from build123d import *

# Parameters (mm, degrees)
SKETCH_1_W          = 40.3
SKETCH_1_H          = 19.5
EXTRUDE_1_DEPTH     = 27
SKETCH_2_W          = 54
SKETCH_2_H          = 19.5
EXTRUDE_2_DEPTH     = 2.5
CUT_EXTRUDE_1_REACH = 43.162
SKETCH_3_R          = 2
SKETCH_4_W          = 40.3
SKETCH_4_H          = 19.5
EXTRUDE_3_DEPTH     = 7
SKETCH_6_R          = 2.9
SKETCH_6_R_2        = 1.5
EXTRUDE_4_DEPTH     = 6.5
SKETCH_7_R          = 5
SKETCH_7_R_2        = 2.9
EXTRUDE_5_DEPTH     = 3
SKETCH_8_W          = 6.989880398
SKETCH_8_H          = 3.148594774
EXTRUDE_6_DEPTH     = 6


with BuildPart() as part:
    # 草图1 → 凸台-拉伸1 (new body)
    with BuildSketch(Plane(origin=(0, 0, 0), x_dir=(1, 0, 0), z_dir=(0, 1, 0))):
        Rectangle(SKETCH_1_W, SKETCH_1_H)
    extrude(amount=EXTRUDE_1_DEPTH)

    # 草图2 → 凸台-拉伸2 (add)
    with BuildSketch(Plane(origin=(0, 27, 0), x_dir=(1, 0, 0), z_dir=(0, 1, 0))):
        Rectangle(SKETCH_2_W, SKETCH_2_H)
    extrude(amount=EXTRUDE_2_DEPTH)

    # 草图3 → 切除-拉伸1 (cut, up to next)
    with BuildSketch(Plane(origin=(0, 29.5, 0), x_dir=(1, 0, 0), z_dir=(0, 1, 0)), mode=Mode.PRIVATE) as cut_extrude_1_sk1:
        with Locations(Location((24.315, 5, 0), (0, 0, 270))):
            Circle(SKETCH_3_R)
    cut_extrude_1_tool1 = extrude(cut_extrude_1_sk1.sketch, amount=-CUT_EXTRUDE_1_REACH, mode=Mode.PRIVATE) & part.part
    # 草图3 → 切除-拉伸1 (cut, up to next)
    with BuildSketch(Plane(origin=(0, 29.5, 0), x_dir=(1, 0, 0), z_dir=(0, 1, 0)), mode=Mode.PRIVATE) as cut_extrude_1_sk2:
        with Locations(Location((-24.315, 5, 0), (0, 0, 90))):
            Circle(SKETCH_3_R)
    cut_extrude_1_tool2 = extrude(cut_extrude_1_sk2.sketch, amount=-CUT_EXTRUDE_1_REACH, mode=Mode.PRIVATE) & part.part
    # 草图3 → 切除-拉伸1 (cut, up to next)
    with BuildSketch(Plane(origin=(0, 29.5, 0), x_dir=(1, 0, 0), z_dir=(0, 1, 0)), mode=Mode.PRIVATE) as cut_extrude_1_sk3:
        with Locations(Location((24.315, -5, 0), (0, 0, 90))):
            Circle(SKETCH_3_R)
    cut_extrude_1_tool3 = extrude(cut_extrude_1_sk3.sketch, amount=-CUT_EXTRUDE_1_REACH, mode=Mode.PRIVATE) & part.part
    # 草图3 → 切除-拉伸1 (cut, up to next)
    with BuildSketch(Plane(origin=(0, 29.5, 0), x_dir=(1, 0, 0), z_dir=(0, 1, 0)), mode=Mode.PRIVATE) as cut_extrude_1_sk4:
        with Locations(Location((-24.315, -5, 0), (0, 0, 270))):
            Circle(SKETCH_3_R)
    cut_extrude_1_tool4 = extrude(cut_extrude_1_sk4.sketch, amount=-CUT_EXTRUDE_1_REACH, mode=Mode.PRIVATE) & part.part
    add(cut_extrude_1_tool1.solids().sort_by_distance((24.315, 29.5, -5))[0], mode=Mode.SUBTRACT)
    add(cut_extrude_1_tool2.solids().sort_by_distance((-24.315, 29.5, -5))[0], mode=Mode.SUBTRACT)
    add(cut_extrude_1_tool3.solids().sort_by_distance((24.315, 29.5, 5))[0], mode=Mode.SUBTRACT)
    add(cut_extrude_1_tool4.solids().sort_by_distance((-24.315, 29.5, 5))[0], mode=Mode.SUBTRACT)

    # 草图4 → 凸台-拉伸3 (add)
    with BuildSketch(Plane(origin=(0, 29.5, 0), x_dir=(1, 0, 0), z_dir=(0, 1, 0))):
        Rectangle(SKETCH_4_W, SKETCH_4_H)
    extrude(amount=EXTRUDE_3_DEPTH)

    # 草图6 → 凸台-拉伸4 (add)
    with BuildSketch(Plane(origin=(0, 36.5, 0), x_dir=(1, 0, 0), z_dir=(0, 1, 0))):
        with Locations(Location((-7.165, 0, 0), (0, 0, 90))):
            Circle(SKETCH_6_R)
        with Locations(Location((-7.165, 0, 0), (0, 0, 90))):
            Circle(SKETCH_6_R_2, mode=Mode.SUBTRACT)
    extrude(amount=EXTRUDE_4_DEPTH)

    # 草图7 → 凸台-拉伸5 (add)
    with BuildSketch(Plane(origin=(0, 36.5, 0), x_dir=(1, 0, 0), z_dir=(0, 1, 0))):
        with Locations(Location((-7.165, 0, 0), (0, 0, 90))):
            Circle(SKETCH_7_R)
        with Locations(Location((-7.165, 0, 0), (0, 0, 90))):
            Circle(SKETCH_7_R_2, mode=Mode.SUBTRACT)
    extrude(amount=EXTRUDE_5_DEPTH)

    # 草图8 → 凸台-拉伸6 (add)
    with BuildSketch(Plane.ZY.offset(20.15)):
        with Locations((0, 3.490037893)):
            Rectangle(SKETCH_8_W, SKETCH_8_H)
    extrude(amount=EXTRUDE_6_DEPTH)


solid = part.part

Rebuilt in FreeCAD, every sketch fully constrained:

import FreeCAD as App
import Part
import Sketcher
from FreeCAD import Vector

doc = App.newDocument("Part")
params = doc.addObject("Spreadsheet::Sheet", "Params")
for row, (alias, value) in enumerate([
    ("sketch1_width", "40.3 mm"),
    ("sketch1_height", "19.5 mm"),
    ("pad1_length", "27 mm"),
    ("sketch2_width", "54 mm"),
    ("sketch2_height", "19.5 mm"),
    ("pad2_length", "2.5 mm"),
    ("sketch3_diameter", "4 mm"),
    ("sketch4_diameter", "4 mm"),
    ("sketch5_diameter", "4 mm"),
    ("sketch6_diameter", "4 mm"),
    ("sketch7_width", "40.3 mm"),
    ("sketch7_height", "19.5 mm"),
    ("pad3_length", "7 mm"),
    ("sketch8_diameter", "3 mm"),
    ("sketch8_diameter2", "5.8 mm"),
    ("pad4_length", "6.5 mm"),
    ("sketch9_diameter", "10 mm"),
    ("sketch9_diameter2", "5.8 mm"),
    ("pad5_length", "3 mm"),
    ("pad6_length", "6 mm"),
], start=1):
    params.set(f"A{row}", alias)
    params.set(f"B{row}", "=" + value)
    params.setAlias(f"B{row}", alias)

body = doc.addObject("PartDesign::Body", "Body")

# Sketch on XZ plane
sketch1 = body.newObject("Sketcher::SketchObject", "Sketch")
sketch1.AttachmentSupport = (doc.getObject("XZ_Plane"), [""])
sketch1.MapMode = "FlatFace"
sketch1.addGeometry([
    Part.LineSegment(Vector(-20, -10, 0), Vector(-20, 10, 0)),
    Part.LineSegment(Vector(-20, 10, 0), Vector(20, 10, 0)),
    Part.LineSegment(Vector(20, 10, 0), Vector(20, -10, 0)),
    Part.LineSegment(Vector(20, -10, 0), Vector(-20, -10, 0)),
], False)
sketch1.addConstraint([
    Sketcher.Constraint("Coincident", 0, 2, 1, 1),
    Sketcher.Constraint("Coincident", 1, 2, 2, 1),
    Sketcher.Constraint("Coincident", 2, 2, 3, 1),
    Sketcher.Constraint("Coincident", 3, 2, 0, 1),
    Sketcher.Constraint("Vertical", 0),
    Sketcher.Constraint("Horizontal", 1),
    Sketcher.Constraint("Vertical", 2),
    Sketcher.Constraint("Horizontal", 3),
    Sketcher.Constraint("Symmetric", 0, 2, 2, 2, -1, 1),
    Sketcher.Constraint("DistanceX", 1, 1, 1, 2, 40.3),
    Sketcher.Constraint("DistanceY", 0, 1, 0, 2, 19.5),
])
sketch1.setExpression("Constraints[9]", "Params.sketch1_width")
sketch1.setExpression("Constraints[10]", "Params.sketch1_height")
pad1 = body.newObject("PartDesign::Pad", "Pad")
pad1.Profile = sketch1
pad1.setExpression("Length", "Params.pad1_length")
pad1.Reversed = True

# Sketch on XZ plane
sketch2 = body.newObject("Sketcher::SketchObject", "Sketch001")
sketch2.AttachmentSupport = (doc.getObject("XZ_Plane"), [""])
sketch2.MapMode = "FlatFace"
sketch2.AttachmentOffset = App.Placement(Vector(0, 0, -27), App.Rotation())
sketch2.addGeometry([
    Part.LineSegment(Vector(-27, -10, 0), Vector(-27, 10, 0)),
    Part.LineSegment(Vector(-27, 10, 0), Vector(27, 10, 0)),
    Part.LineSegment(Vector(27, 10, 0), Vector(27, -10, 0)),
    Part.LineSegment(Vector(27, -10, 0), Vector(-27, -10, 0)),
], False)
sketch2.addConstraint([
    Sketcher.Constraint("Coincident", 0, 2, 1, 1),
    Sketcher.Constraint("Coincident", 1, 2, 2, 1),
    Sketcher.Constraint("Coincident", 2, 2, 3, 1),
    Sketcher.Constraint("Coincident", 3, 2, 0, 1),
    Sketcher.Constraint("Vertical", 0),
    Sketcher.Constraint("Horizontal", 1),
    Sketcher.Constraint("Vertical", 2),
    Sketcher.Constraint("Horizontal", 3),
    Sketcher.Constraint("Symmetric", 0, 2, 2, 2, -1, 1),
    Sketcher.Constraint("DistanceX", 1, 1, 1, 2, 54.0),
    Sketcher.Constraint("DistanceY", 0, 1, 0, 2, 19.5),
])
sketch2.setExpression("Constraints[9]", "Params.sketch2_width")
sketch2.setExpression("Constraints[10]", "Params.sketch2_height")
pad2 = body.newObject("PartDesign::Pad", "Pad001")
pad2.Profile = sketch2
pad2.setExpression("Length", "Params.pad2_length")
pad2.Reversed = True

# Sketch on XZ plane
sketch3 = body.newObject("Sketcher::SketchObject", "Sketch002")
sketch3.AttachmentSupport = (doc.getObject("XZ_Plane"), [""])
sketch3.MapMode = "FlatFace"
sketch3.AttachmentOffset = App.Placement(Vector(0, 0, -29.5), App.Rotation())
sketch3.addGeometry(Part.Circle(Vector(24.3, -5, 0), Vector(0, 0, 1), 2), False)
sketch3.addConstraint([
    Sketcher.Constraint("Diameter", 0, 4.0),
    Sketcher.Constraint("DistanceY", 0, 3, -1, 1, 5.0),
    Sketcher.Constraint("DistanceX", -1, 1, 0, 3, 24.315),
])
sketch3.setExpression("Constraints[0]", "Params.sketch3_diameter")
pocket1 = body.newObject("PartDesign::Pocket", "Pocket")
pocket1.Profile = sketch3
pocket1.Type = "UpToFirst"
pocket1.Reversed = True

# Sketch on XZ plane
sketch4 = body.newObject("Sketcher::SketchObject", "Sketch003")
sketch4.AttachmentSupport = (doc.getObject("XZ_Plane"), [""])
sketch4.MapMode = "FlatFace"
sketch4.AttachmentOffset = App.Placement(Vector(0, 0, -29.5), App.Rotation())
sketch4.addGeometry(Part.Circle(Vector(-24.3, -5, 0), Vector(0, 0, 1), 2), False)
sketch4.addConstraint([
    Sketcher.Constraint("Diameter", 0, 4.0),
    Sketcher.Constraint("DistanceY", 0, 3, -1, 1, 5.0),
    Sketcher.Constraint("DistanceX", 0, 3, -1, 1, 24.315),
])
sketch4.setExpression("Constraints[0]", "Params.sketch4_diameter")
pocket2 = body.newObject("PartDesign::Pocket", "Pocket001")
pocket2.Profile = sketch4
pocket2.Type = "UpToFirst"
pocket2.Reversed = True

# Sketch on XZ plane
sketch5 = body.newObject("Sketcher::SketchObject", "Sketch004")
sketch5.AttachmentSupport = (doc.getObject("XZ_Plane"), [""])
sketch5.MapMode = "FlatFace"
sketch5.AttachmentOffset = App.Placement(Vector(0, 0, -29.5), App.Rotation())
sketch5.addGeometry(Part.Circle(Vector(24.3, 5, 0), Vector(0, 0, 1), 2), False)
sketch5.addConstraint([
    Sketcher.Constraint("Diameter", 0, 4.0),
    Sketcher.Constraint("DistanceY", -1, 1, 0, 3, 5.0),
    Sketcher.Constraint("DistanceX", -1, 1, 0, 3, 24.315),
])
sketch5.setExpression("Constraints[0]", "Params.sketch5_diameter")
pocket3 = body.newObject("PartDesign::Pocket", "Pocket002")
pocket3.Profile = sketch5
pocket3.Type = "UpToFirst"
pocket3.Reversed = True

# Sketch on XZ plane
sketch6 = body.newObject("Sketcher::SketchObject", "Sketch005")
sketch6.AttachmentSupport = (doc.getObject("XZ_Plane"), [""])
sketch6.MapMode = "FlatFace"
sketch6.AttachmentOffset = App.Placement(Vector(0, 0, -29.5), App.Rotation())
sketch6.addGeometry(Part.Circle(Vector(-24.3, 5, 0), Vector(0, 0, 1), 2), False)
sketch6.addConstraint([
    Sketcher.Constraint("Diameter", 0, 4.0),
    Sketcher.Constraint("DistanceY", -1, 1, 0, 3, 5.0),
    Sketcher.Constraint("DistanceX", 0, 3, -1, 1, 24.315),
])
sketch6.setExpression("Constraints[0]", "Params.sketch6_diameter")
pocket4 = body.newObject("PartDesign::Pocket", "Pocket003")
pocket4.Profile = sketch6
pocket4.Type = "UpToFirst"
pocket4.Reversed = True

# Sketch on XZ plane
sketch7 = body.newObject("Sketcher::SketchObject", "Sketch006")
sketch7.AttachmentSupport = (doc.getObject("XZ_Plane"), [""])
sketch7.MapMode = "FlatFace"
sketch7.AttachmentOffset = App.Placement(Vector(0, 0, -29.5), App.Rotation())
sketch7.addGeometry([
    Part.LineSegment(Vector(-20, -10, 0), Vector(-20, 10, 0)),
    Part.LineSegment(Vector(-20, 10, 0), Vector(20, 10, 0)),
    Part.LineSegment(Vector(20, 10, 0), Vector(20, -10, 0)),
    Part.LineSegment(Vector(20, -10, 0), Vector(-20, -10, 0)),
], False)
sketch7.addConstraint([
    Sketcher.Constraint("Coincident", 0, 2, 1, 1),
    Sketcher.Constraint("Coincident", 1, 2, 2, 1),
    Sketcher.Constraint("Coincident", 2, 2, 3, 1),
    Sketcher.Constraint("Coincident", 3, 2, 0, 1),
    Sketcher.Constraint("Vertical", 0),
    Sketcher.Constraint("Horizontal", 1),
    Sketcher.Constraint("Vertical", 2),
    Sketcher.Constraint("Horizontal", 3),
    Sketcher.Constraint("Symmetric", 0, 2, 2, 2, -1, 1),
    Sketcher.Constraint("DistanceX", 1, 1, 1, 2, 40.3),
    Sketcher.Constraint("DistanceY", 0, 1, 0, 2, 19.5),
])
sketch7.setExpression("Constraints[9]", "Params.sketch7_width")
sketch7.setExpression("Constraints[10]", "Params.sketch7_height")
pad3 = body.newObject("PartDesign::Pad", "Pad002")
pad3.Profile = sketch7
pad3.setExpression("Length", "Params.pad3_length")
pad3.Reversed = True

# Sketch on XZ plane
sketch8 = body.newObject("Sketcher::SketchObject", "Sketch007")
sketch8.AttachmentSupport = (doc.getObject("XZ_Plane"), [""])
sketch8.MapMode = "FlatFace"
sketch8.AttachmentOffset = App.Placement(Vector(0, 0, -36.5), App.Rotation())
sketch8.addGeometry([
    Part.Circle(Vector(-7.2, 0, 0), Vector(0, 0, 1), 2.9),
    Part.Circle(Vector(-7.2, 0, 0), Vector(0, 0, 1), 1.5),
], False)
sketch8.addConstraint([
    Sketcher.Constraint("Coincident", 1, 3, 0, 3),
    Sketcher.Constraint("PointOnObject", 0, 3, -1),
    Sketcher.Constraint("Diameter", 1, 3.0),
    Sketcher.Constraint("Diameter", 0, 5.8),
    Sketcher.Constraint("DistanceX", 0, 3, -1, 1, 7.165),
])
sketch8.setExpression("Constraints[2]", "Params.sketch8_diameter")
sketch8.setExpression("Constraints[3]", "Params.sketch8_diameter2")
pad4 = body.newObject("PartDesign::Pad", "Pad003")
pad4.Profile = sketch8
pad4.setExpression("Length", "Params.pad4_length")
pad4.Reversed = True

# Sketch on XZ plane
sketch9 = body.newObject("Sketcher::SketchObject", "Sketch008")
sketch9.AttachmentSupport = (doc.getObject("XZ_Plane"), [""])
sketch9.MapMode = "FlatFace"
sketch9.AttachmentOffset = App.Placement(Vector(0, 0, -36.5), App.Rotation())
sketch9.addGeometry([
    Part.Circle(Vector(-7.2, 0, 0), Vector(0, 0, 1), 5),
    Part.Circle(Vector(-7.2, 0, 0), Vector(0, 0, 1), 2.9),
], False)
sketch9.addConstraint([
    Sketcher.Constraint("Coincident", 1, 3, 0, 3),
    Sketcher.Constraint("PointOnObject", 0, 3, -1),
    Sketcher.Constraint("Diameter", 0, 10.0),
    Sketcher.Constraint("Diameter", 1, 5.8),
    Sketcher.Constraint("DistanceX", 0, 3, -1, 1, 7.165),
])
sketch9.setExpression("Constraints[2]", "Params.sketch9_diameter")
sketch9.setExpression("Constraints[3]", "Params.sketch9_diameter2")
pad5 = body.newObject("PartDesign::Pad", "Pad004")
pad5.Profile = sketch9
pad5.setExpression("Length", "Params.pad5_length")
pad5.Reversed = True

# Sketch on YZ plane
sketch10 = body.newObject("Sketcher::SketchObject", "Sketch009")
sketch10.AttachmentSupport = (doc.getObject("YZ_Plane"), [""])
sketch10.MapMode = "FlatFace"
sketch10.AttachmentOffset = App.Placement(Vector(0, 0, -20.15), App.Rotation())
sketch10.addGeometry([
    Part.LineSegment(Vector(5.1, -3.5, 0), Vector(1.9, -3.5, 0)),
    Part.LineSegment(Vector(1.9, -3.5, 0), Vector(1.9, 3.5, 0)),
    Part.LineSegment(Vector(1.9, 3.5, 0), Vector(5.1, 3.5, 0)),
    Part.LineSegment(Vector(5.1, 3.5, 0), Vector(5.1, -3.5, 0)),
], False)
sketch10.addConstraint([
    Sketcher.Constraint("Coincident", 0, 2, 1, 1),
    Sketcher.Constraint("Coincident", 1, 2, 2, 1),
    Sketcher.Constraint("Coincident", 2, 2, 3, 1),
    Sketcher.Constraint("Coincident", 3, 2, 0, 1),
    Sketcher.Constraint("Horizontal", 0),
    Sketcher.Constraint("Vertical", 1),
    Sketcher.Constraint("Horizontal", 2),
    Sketcher.Constraint("Vertical", 3),
    Sketcher.Constraint("DistanceY", 1, 1, 1, 2, 6.98988),
    Sketcher.Constraint("DistanceX", 0, 2, 0, 1, 3.148595),
    Sketcher.Constraint("DistanceX", -1, 1, 0, 2, 1.915741),
    Sketcher.Constraint("DistanceY", 0, 2, -1, 1, 3.49494),
])
pad6 = body.newObject("PartDesign::Pad", "Pad005")
pad6.Profile = sketch10
pad6.setExpression("Length", "Params.pad6_length")
pad6.Reversed = True

doc.recompute()
